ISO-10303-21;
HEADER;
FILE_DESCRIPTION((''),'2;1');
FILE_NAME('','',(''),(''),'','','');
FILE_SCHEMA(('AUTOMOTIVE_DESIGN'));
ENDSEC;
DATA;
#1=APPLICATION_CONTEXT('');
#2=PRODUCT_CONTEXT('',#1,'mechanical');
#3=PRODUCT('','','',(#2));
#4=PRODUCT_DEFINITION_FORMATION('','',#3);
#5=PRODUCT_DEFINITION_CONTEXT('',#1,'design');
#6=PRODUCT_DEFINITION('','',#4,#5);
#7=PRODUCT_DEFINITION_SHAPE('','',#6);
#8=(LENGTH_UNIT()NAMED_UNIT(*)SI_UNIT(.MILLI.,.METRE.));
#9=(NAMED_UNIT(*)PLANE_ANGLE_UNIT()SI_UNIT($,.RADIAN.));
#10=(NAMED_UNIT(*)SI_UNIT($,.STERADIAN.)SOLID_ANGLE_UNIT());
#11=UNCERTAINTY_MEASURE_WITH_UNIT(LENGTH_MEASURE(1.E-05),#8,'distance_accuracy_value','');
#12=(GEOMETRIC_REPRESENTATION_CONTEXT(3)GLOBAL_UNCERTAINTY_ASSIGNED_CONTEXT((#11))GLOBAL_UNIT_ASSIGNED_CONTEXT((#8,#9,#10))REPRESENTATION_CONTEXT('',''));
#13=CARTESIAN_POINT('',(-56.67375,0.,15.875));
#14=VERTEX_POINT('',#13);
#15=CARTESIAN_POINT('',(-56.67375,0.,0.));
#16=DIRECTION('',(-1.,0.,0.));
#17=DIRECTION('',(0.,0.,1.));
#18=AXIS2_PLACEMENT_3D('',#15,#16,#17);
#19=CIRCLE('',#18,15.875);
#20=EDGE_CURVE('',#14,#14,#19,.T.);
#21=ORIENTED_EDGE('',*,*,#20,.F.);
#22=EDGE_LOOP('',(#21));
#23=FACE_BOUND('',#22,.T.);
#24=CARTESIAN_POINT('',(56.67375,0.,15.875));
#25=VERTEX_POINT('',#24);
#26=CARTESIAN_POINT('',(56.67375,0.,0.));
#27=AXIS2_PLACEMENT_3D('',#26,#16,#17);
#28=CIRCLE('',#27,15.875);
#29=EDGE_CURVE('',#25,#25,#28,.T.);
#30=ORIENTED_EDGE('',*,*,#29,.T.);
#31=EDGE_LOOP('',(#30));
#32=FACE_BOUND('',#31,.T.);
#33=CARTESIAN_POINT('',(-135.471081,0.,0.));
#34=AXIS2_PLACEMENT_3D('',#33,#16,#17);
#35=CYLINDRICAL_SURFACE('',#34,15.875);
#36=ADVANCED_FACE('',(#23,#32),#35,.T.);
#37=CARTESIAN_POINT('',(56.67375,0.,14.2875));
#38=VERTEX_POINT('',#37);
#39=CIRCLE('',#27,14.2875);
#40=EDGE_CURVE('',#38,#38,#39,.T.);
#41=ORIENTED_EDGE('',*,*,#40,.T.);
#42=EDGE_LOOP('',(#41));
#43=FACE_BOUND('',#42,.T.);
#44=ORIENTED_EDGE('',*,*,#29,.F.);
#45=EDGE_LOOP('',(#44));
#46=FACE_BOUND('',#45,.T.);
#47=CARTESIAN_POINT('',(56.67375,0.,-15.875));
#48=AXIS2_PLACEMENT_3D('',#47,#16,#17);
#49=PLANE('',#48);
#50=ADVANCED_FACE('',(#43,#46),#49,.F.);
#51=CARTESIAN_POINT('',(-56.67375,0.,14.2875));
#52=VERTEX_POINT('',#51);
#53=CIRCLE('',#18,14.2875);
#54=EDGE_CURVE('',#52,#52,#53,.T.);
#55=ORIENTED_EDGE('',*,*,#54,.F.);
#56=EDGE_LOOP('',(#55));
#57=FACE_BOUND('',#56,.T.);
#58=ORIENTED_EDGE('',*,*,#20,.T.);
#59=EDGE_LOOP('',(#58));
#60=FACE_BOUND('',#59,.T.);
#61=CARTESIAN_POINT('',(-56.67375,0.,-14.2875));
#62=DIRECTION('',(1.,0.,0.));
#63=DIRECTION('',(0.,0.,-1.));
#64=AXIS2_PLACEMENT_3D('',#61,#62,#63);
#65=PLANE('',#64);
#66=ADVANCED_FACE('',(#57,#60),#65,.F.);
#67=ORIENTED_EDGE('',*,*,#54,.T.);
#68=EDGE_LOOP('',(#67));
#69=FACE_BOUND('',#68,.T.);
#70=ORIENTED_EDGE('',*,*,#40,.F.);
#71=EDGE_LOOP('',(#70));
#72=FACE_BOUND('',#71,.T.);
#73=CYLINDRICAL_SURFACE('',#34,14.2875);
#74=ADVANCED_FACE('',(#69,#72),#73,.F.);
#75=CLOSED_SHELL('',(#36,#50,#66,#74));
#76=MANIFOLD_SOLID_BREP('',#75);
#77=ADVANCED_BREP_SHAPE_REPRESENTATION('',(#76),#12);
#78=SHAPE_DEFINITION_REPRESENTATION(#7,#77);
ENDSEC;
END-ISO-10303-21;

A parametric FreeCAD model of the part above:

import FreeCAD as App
import Part
import Sketcher
from FreeCAD import Vector
Q = App.Units.Quantity

doc = App.newDocument("Part")
params = doc.addObject("Spreadsheet::Sheet", "Params")
for row, (alias, value) in enumerate([
    ("sketch1_height", "0.0625 in"),
    ("revolution_angle", "360 deg"),
], start=1):
    params.set(f"A{row}", alias)
    params.set(f"B{row}", "=" + value)
    params.setAlias(f"B{row}", alias)

body = doc.addObject("PartDesign::Body", "Body")

# Sketch on XZ plane
sketch1 = doc.addObject("Sketcher::SketchObject", "Sketch")
body.addObject(sketch1)
sketch1.AttachmentSupport = (doc.XZ_Plane, [""])
sketch1.MapMode = "FlatFace"
sketch1.addGeometry(Part.LineSegment(Vector(-56.7, -15.9, 0), Vector(-56.7, -14.3, 0)), False)
sketch1.addGeometry(Part.LineSegment(Vector(-56.7, -14.3, 0), Vector(56.7, -14.3, 0)), False)
sketch1.addGeometry(Part.LineSegment(Vector(56.7, -14.3, 0), Vector(56.7, -15.9, 0)), False)
sketch1.addGeometry(Part.LineSegment(Vector(56.7, -15.9, 0), Vector(-56.7, -15.9, 0)), False)
sketch1.addConstraint(Sketcher.Constraint("Coincident", 0, 2, 1, 1))
sketch1.addConstraint(Sketcher.Constraint("Coincident", 1, 2, 2, 1))
sketch1.addConstraint(Sketcher.Constraint("Coincident", 2, 2, 3, 1))
sketch1.addConstraint(Sketcher.Constraint("Coincident", 3, 2, 0, 1))
sketch1.addConstraint(Sketcher.Constraint("Vertical", 0))
sketch1.addConstraint(Sketcher.Constraint("Horizontal", 1))
sketch1.addConstraint(Sketcher.Constraint("Vertical", 2))
sketch1.addConstraint(Sketcher.Constraint("Horizontal", 3))
sketch1.addConstraint(Sketcher.Constraint("DistanceY", 0, 1, 0, 2, Q("0.0625 in")))
sketch1.addConstraint(Sketcher.Constraint("DistanceX", 1, 1, 1, 2, Q("4.4625 in")))
sketch1.addConstraint(Sketcher.Constraint("DistanceY", 0, 2, -1, 1, Q("0.5625 in")))
sketch1.addConstraint(Sketcher.Constraint("DistanceX", 0, 2, -1, 1, 56.67375))
sketch1.setExpression("Constraints[8]", "Params.sketch1_height")
revolution = doc.addObject("PartDesign::Revolution", "Revolution")
body.addObject(revolution)
revolution.Profile = sketch1
revolution.ReferenceAxis = (sketch1, ["H_Axis"])
revolution.setExpression("Angle", "Params.revolution_angle")

doc.recompute()
